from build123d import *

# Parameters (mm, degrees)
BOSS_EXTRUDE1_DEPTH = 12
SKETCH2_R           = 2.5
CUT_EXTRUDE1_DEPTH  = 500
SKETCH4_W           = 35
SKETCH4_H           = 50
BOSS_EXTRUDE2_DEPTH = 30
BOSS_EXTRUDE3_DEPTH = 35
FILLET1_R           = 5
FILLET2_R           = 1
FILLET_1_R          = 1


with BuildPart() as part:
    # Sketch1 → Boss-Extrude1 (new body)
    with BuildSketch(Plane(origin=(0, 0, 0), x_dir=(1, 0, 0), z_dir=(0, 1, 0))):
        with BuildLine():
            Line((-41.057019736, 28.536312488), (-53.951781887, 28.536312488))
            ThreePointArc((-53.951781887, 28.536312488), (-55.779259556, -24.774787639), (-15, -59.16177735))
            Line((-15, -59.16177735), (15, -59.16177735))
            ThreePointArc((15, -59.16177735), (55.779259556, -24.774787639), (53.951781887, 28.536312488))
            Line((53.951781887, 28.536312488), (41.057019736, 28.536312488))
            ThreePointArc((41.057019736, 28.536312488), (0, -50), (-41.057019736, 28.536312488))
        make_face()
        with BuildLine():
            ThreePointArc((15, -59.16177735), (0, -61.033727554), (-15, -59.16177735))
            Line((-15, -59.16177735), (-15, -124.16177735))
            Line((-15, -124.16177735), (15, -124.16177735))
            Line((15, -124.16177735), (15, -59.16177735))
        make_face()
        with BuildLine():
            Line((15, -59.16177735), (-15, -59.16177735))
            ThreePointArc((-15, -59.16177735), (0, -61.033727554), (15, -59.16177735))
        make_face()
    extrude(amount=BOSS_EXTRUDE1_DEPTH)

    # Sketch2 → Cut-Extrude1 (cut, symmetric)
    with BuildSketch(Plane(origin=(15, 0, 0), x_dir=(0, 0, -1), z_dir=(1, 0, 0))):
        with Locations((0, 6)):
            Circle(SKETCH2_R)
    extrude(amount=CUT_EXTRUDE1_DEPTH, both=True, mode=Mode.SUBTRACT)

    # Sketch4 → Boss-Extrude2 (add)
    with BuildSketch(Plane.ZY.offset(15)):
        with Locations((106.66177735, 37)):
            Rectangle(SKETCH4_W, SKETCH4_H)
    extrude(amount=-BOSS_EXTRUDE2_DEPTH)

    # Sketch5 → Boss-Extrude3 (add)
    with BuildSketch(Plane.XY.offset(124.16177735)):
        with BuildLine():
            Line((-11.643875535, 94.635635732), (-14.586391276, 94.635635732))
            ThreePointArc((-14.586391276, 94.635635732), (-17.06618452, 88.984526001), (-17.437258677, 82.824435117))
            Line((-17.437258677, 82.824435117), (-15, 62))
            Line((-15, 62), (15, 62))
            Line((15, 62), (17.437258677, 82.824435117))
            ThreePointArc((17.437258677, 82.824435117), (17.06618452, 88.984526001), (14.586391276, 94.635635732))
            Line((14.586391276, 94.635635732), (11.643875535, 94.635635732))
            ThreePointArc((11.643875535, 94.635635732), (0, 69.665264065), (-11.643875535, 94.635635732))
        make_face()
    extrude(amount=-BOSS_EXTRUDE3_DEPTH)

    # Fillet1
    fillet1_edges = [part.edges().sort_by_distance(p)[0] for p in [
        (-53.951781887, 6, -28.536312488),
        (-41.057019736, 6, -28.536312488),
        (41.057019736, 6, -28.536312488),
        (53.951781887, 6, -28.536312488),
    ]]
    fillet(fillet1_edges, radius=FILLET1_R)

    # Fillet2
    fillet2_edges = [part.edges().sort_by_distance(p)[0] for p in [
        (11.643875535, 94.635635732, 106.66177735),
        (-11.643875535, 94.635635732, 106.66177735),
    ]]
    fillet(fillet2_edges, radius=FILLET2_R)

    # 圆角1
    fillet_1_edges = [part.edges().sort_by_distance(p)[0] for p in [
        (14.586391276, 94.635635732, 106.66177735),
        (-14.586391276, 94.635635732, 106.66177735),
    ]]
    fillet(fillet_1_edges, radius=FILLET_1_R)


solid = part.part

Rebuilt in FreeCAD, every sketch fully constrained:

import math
import FreeCAD as App
import Part
import Sketcher
from FreeCAD import Vector
Q = App.Units.Quantity


def edges_at(feature, points):
    """Names of the edges that pass closest to the given points."""
    edges = feature.Shape.Edges
    near = lambda p: min(range(len(edges)), key=lambda i: edges[i].distToShape(Part.Vertex(*p))[0])
    return sorted({f"Edge{near(p) + 1}" for p in points})

doc = App.newDocument("Part")
body = doc.addObject("PartDesign::Body", "Body")

sketch1 = doc.addObject("Sketcher::SketchObject", "Sketch")
body.addObject(sketch1)
sketch1.AttachmentSupport = (doc.XZ_Plane, [""])
sketch1.MapMode = "FlatFace"
sketch1.addGeometry([
    Part.LineSegment(Vector(-41, -29, 0), Vector(-54, -29, 0)),
    Part.ArcOfCircle(Part.Circle(Vector(0, 0, 0), Vector(0, 0, 1), 61), math.radians(104), math.radians(208)),
    Part.LineSegment(Vector(-15, 59, 0), Vector(-15, 124, 0)),
    Part.LineSegment(Vector(-15, 124, 0), Vector(15, 124, 0)),
    Part.LineSegment(Vector(15, 124, 0), Vector(15, 59, 0)),
    Part.ArcOfCircle(Part.Circle(Vector(0, 0, 0), Vector(0, 0, 1), 61), math.radians(-28), math.radians(76)),
    Part.LineSegment(Vector(54, -29, 0), Vector(41, -29, 0)),
    Part.ArcOfCircle(Part.Circle(Vector(0, 0, 0), Vector(0, 0, 1), 50), math.radians(-35), math.radians(215)),
], False)
sketch1.addConstraint([
    Sketcher.Constraint("Coincident", 0, 2, 1, 2),
    Sketcher.Constraint("Coincident", 1, 1, 2, 1),
    Sketcher.Constraint("Coincident", 2, 2, 3, 1),
    Sketcher.Constraint("Coincident", 3, 2, 4, 1),
    Sketcher.Constraint("Coincident", 4, 2, 5, 2),
    Sketcher.Constraint("Coincident", 5, 1, 6, 1),
    Sketcher.Constraint("Coincident", 6, 2, 7, 1),
    Sketcher.Constraint("Coincident", 7, 2, 0, 1),
    Sketcher.Constraint("Horizontal", 0),
    Sketcher.Constraint("Vertical", 2),
    Sketcher.Constraint("Horizontal", 3),
    Sketcher.Constraint("Vertical", 4),
    Sketcher.Constraint("Horizontal", 6),
    Sketcher.Constraint("Coincident", 1, 3, -1, 1),
    Sketcher.Constraint("Coincident", 5, 3, -1, 1),
    Sketcher.Constraint("Coincident", 7, 3, -1, 1),
    Sketcher.Constraint("Equal", 1, 5),
    Sketcher.Constraint("Horizontal", 1, 1, 4, 2),
    Sketcher.Constraint("Horizontal", 0, 2, 5, 1),
    Sketcher.Constraint("Radius", 7, Q("50 mm")),
    Sketcher.Constraint("DistanceX", 3, 1, 3, 2, Q("30 mm")),
    Sketcher.Constraint("DistanceY", 2, 1, 2, 2, Q("65 mm")),
    Sketcher.Constraint("Radius", 1, Q("61.033728 mm")),
    Sketcher.Constraint("DistanceX", 0, 2, 0, 1, Q("12.894762 mm")),
])
pad1 = doc.addObject("PartDesign::Pad", "Pad")
body.addObject(pad1)
pad1.Profile = sketch1
pad1.Length = 12
pad1.Reversed = True

sketch2 = doc.addObject("Sketcher::SketchObject", "Sketch001")
body.addObject(sketch2)
sketch2.AttachmentSupport = (doc.YZ_Plane, [""])
sketch2.MapMode = "FlatFace"
sketch2.AttachmentOffset = App.Placement(Vector(0, 0, 15), App.Rotation())
sketch2.addGeometry(Part.Circle(Vector(6, 0, 0), Vector(0, 0, 1), 2.5), False)
sketch2.addConstraint([
    Sketcher.Constraint("PointOnObject", 0, 3, -1),
    Sketcher.Constraint("Diameter", 0, Q("5 mm")),
    Sketcher.Constraint("DistanceX", -1, 1, 0, 3, Q("6 mm")),
])
pocket1 = doc.addObject("PartDesign::Pocket", "Pocket")
body.addObject(pocket1)
pocket1.Profile = sketch2
pocket1.Length = 1000
pocket1.Midplane = True

sketch3 = doc.addObject("Sketcher::SketchObject", "Sketch002")
body.addObject(sketch3)
sketch3.AttachmentSupport = (doc.YZ_Plane, [""])
sketch3.MapMode = "FlatFace"
sketch3.AttachmentOffset = App.Placement(Vector(0, 0, -15), App.Rotation())
sketch3.addGeometry([
    Part.LineSegment(Vector(62, 89, 0), Vector(12, 89, 0)),
    Part.LineSegment(Vector(12, 89, 0), Vector(12, 124, 0)),
    Part.LineSegment(Vector(12, 124, 0), Vector(62, 124, 0)),
    Part.LineSegment(Vector(62, 124, 0), Vector(62, 89, 0)),
], False)
sketch3.addConstraint([
    Sketcher.Constraint("Coincident", 0, 2, 1, 1),
    Sketcher.Constraint("Coincident", 1, 2, 2, 1),
    Sketcher.Constraint("Coincident", 2, 2, 3, 1),
    Sketcher.Constraint("Coincident", 3, 2, 0, 1),
    Sketcher.Constraint("Horizontal", 0),
    Sketcher.Constraint("Vertical", 1),
    Sketcher.Constraint("Horizontal", 2),
    Sketcher.Constraint("Vertical", 3),
    Sketcher.Constraint("DistanceX", 0, 2, 0, 1, Q("50 mm")),
    Sketcher.Constraint("DistanceY", 1, 1, 1, 2, Q("35 mm")),
    Sketcher.Constraint("DistanceX", -1, 1, 0, 2, Q("12 mm")),
    Sketcher.Constraint("DistanceY", -1, 1, 0, 2, Q("89.161777 mm")),
])
pad2 = doc.addObject("PartDesign::Pad", "Pad001")
body.addObject(pad2)
pad2.Profile = sketch3
pad2.Length = 30

sketch4 = doc.addObject("Sketcher::SketchObject", "Sketch003")
body.addObject(sketch4)
sketch4.AttachmentSupport = (doc.XY_Plane, [""])
sketch4.MapMode = "FlatFace"
sketch4.AttachmentOffset = App.Placement(Vector(0, 0, 124.161777), App.Rotation())
sketch4.addGeometry([
    Part.LineSegment(Vector(-11.643876, 94.635636, 0), Vector(-14.586391, 94.635636, 0)),
    Part.ArcOfCircle(Part.Circle(Vector(0, 84.865264, 0), Vector(0, 0, 1), 17.55628), math.radians(146.184721), math.radians(186.675437)),
    Part.LineSegment(Vector(-17.437259, 82.824435, 0), Vector(-15, 62, 0)),
    Part.LineSegment(Vector(-15, 62, 0), Vector(15, 62, 0)),
    Part.LineSegment(Vector(15, 62, 0), Vector(17.437259, 82.824435, 0)),
    Part.ArcOfCircle(Part.Circle(Vector(0, 84.865264, 0), Vector(0, 0, 1), 17.55628), math.radians(-6.675437), math.radians(33.815279)),
    Part.LineSegment(Vector(14.586391, 94.635636, 0), Vector(11.643876, 94.635636, 0)),
    Part.ArcOfCircle(Part.Circle(Vector(0, 84.865264, 0), Vector(0, 0, 1), 15.2), math.radians(140), math.radians(400)),
], False)
sketch4.addConstraint([
    Sketcher.Constraint("Coincident", 0, 2, 1, 1),
    Sketcher.Constraint("Coincident", 1, 2, 2, 1),
    Sketcher.Constraint("Coincident", 2, 2, 3, 1),
    Sketcher.Constraint("Coincident", 3, 2, 4, 1),
    Sketcher.Constraint("Coincident", 4, 2, 5, 1),
    Sketcher.Constraint("Coincident", 5, 2, 6, 1),
    Sketcher.Constraint("Coincident", 6, 2, 7, 2),
    Sketcher.Constraint("Coincident", 7, 1, 0, 1),
    Sketcher.Constraint("Horizontal", 0),
    Sketcher.Constraint("Horizontal", 3),
    Sketcher.Constraint("Horizontal", 6),
    Sketcher.Constraint("Coincident", 5, 3, 1, 3),
    Sketcher.Constraint("Coincident", 7, 3, 1, 3),
    Sketcher.Constraint("PointOnObject", 1, 3, -2),
    Sketcher.Constraint("Radius", 7, Q("15.2 mm")),
    Sketcher.Constraint("DistanceX", 3, 1, 3, 2, Q("30 mm")),
    Sketcher.Constraint("DistanceX", 2, 2, -1, 1, Q("15 mm")),
    Sketcher.Constraint("DistanceY", -1, 1, 2, 2, Q("62 mm")),
    Sketcher.Constraint("Radius", 1, Q("17.55628 mm")),
    Sketcher.Constraint("Radius", 5, Q("17.55628 mm")),
    Sketcher.Constraint("DistanceY", 1, 2, 0, 2, Q("11.811201 mm")),
    Sketcher.Constraint("DistanceY", 4, 2, 0, 2, Q("11.811201 mm")),
    Sketcher.Constraint("DistanceY", 4, 2, 5, 2, Q("11.811201 mm")),
    Sketcher.Constraint("DistanceX", 0, 2, 0, 1, Q("2.942516 mm")),
    Sketcher.Constraint("Distance", 2, Q("20.966576 mm")),
])
pad3 = doc.addObject("PartDesign::Pad", "Pad002")
body.addObject(pad3)
pad3.Profile = sketch4
pad3.Length = 35
pad3.Reversed = True
doc.recompute()

fillet = doc.addObject("PartDesign::Fillet", "Fillet")
body.addObject(fillet)
fillet.Base = (pad3, edges_at(pad3, [
    (-53.952, 6, -28.536),
    (-41.057, 6, -28.536),
    (41.057, 6, -28.536),
    (53.952, 6, -28.536),
]))
fillet.Radius = 5
doc.recompute()

fillet2 = doc.addObject("PartDesign::Fillet", "Fillet001")
body.addObject(fillet2)
fillet2.Base = (fillet, edges_at(fillet, [(11.644, 94.636, 106.662), (-11.644, 94.636, 106.662)]))
fillet2.Radius = 1
doc.recompute()

fillet3 = doc.addObject("PartDesign::Fillet", "Fillet002")
body.addObject(fillet3)
fillet3.Base = (fillet2, edges_at(fillet2, [(14.586, 94.636, 106.662), (-14.586, 94.636, 106.662)]))
fillet3.Radius = 1

doc.recompute()
